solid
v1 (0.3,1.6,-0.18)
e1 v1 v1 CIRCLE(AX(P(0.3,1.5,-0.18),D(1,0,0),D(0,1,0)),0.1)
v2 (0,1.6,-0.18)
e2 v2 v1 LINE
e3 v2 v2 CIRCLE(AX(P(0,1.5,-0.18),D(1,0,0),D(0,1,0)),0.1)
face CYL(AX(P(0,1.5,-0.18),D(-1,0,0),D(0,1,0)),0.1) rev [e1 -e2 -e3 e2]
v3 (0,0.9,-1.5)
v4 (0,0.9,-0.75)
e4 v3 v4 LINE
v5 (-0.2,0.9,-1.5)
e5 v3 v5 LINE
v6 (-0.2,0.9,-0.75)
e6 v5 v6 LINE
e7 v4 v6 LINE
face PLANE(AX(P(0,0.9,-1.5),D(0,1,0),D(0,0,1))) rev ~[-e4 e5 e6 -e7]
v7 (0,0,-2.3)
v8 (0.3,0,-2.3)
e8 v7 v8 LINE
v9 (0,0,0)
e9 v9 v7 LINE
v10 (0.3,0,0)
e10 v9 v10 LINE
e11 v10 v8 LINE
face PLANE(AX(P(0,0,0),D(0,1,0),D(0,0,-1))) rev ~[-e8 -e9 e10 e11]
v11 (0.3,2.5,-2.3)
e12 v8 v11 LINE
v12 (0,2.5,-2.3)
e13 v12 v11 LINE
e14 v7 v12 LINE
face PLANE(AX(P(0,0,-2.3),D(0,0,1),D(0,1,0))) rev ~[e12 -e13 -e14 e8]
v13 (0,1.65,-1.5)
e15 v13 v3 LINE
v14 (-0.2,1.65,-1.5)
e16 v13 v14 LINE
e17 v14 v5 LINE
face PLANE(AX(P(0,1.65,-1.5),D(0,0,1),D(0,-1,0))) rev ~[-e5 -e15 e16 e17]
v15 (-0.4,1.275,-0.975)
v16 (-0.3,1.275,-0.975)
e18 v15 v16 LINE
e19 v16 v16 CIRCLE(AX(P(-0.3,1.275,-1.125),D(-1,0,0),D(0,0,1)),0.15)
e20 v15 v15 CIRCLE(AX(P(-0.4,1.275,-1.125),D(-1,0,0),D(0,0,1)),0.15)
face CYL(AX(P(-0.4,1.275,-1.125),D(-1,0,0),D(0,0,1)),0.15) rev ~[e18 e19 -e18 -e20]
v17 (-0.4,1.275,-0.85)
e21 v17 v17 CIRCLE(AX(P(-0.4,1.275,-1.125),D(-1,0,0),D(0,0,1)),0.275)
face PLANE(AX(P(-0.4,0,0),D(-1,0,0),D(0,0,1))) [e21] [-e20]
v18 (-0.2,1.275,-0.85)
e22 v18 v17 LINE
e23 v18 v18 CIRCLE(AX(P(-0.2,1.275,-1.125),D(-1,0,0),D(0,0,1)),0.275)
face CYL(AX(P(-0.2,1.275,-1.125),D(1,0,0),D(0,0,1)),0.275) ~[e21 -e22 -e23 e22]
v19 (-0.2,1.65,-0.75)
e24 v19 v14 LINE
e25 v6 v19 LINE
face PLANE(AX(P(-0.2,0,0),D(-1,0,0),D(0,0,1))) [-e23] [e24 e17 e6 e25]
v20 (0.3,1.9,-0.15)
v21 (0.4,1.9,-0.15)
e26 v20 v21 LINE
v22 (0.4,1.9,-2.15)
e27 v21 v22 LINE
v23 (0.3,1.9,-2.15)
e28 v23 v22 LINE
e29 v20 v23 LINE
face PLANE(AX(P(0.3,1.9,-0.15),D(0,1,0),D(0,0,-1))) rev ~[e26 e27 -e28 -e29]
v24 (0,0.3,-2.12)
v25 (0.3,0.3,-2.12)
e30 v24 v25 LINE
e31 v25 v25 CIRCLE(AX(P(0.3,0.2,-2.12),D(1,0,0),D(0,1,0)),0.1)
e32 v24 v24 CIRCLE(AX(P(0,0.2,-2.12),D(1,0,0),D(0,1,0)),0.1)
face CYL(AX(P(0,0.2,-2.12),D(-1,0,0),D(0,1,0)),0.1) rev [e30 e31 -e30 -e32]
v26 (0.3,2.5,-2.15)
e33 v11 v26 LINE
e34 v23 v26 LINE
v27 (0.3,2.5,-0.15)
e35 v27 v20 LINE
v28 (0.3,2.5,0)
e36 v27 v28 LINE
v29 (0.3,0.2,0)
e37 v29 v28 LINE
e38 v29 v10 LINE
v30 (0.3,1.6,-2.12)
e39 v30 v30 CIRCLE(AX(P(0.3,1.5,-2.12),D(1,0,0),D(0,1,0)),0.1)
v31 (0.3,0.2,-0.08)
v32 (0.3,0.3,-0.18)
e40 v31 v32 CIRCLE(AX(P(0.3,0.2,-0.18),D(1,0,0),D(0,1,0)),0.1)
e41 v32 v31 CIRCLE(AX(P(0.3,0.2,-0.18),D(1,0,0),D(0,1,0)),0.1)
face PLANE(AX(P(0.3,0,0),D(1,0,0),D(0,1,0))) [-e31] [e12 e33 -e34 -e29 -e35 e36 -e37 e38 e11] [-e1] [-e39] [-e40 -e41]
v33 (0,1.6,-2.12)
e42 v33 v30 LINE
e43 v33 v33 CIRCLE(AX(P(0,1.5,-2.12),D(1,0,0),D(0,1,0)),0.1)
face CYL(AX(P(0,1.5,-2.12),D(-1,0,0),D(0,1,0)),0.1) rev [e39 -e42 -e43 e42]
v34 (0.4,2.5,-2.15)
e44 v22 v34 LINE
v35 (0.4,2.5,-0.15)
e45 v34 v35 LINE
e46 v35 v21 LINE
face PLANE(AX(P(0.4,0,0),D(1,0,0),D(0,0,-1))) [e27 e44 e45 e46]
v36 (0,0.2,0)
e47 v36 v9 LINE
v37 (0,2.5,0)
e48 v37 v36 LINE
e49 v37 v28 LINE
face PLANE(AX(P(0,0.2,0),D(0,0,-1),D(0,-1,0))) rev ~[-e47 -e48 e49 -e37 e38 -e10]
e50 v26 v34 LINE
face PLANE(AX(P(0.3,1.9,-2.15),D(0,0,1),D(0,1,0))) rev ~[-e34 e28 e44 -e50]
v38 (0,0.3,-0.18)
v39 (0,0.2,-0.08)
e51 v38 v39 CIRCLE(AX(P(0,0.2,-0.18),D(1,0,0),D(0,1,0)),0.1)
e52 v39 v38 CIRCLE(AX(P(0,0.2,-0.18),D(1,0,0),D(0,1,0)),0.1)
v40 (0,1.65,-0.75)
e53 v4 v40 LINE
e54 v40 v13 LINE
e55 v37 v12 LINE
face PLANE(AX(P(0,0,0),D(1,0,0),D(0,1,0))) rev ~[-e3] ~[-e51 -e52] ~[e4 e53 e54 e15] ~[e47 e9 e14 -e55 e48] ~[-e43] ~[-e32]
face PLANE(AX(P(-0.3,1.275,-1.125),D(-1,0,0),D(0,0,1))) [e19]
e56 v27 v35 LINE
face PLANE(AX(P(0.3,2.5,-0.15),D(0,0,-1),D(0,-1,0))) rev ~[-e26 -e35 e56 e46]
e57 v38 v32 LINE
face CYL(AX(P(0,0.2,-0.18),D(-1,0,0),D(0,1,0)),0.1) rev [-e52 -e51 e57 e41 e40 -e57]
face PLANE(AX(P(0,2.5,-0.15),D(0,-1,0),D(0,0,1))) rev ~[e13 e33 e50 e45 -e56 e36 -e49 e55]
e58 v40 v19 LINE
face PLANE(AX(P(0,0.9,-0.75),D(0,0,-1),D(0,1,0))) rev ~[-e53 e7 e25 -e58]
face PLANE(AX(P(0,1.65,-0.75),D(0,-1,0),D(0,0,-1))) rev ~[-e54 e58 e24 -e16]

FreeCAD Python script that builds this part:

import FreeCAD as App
import Part
import Sketcher
from FreeCAD import Vector
Q = App.Units.Quantity

doc = App.newDocument("Part")
body = doc.addObject("PartDesign::Body", "Body")

# Sketch on YZ plane
sketch1 = doc.addObject("Sketcher::SketchObject", "Sketch")
body.addObject(sketch1)
sketch1.AttachmentSupport = (doc.YZ_Plane, [""])
sketch1.MapMode = "FlatFace"
sketch1.addGeometry([
    Part.LineSegment(Vector(0.2, 0, 0), Vector(0, 0, 0)),  # 0
    Part.LineSegment(Vector(0, 0, 0), Vector(0, -2.3, 0)),  # 1
    Part.LineSegment(Vector(0, -2.3, 0), Vector(2.5, -2.3, 0)),  # 2
    Part.LineSegment(Vector(2.5, -2.3, 0), Vector(2.5, 0, 0)),  # 3
    Part.LineSegment(Vector(2.5, 0, 0), Vector(0.2, 0, 0)),  # 4
    Part.Circle(Vector(0.2, -2.12, 0), Vector(0, 0, 1), 0.1),  # 5
    Part.Circle(Vector(1.5, -2.12, 0), Vector(0, 0, 1), 0.1),  # 6
    Part.Circle(Vector(0.2, -0.18, 0), Vector(0, 0, 1), 0.1),  # 7
    Part.Circle(Vector(1.5, -0.18, 0), Vector(0, 0, 1), 0.1),  # 8
], False)
sketch1.addConstraint([
    Sketcher.Constraint("Coincident", 0, 2, 1, 1),
    Sketcher.Constraint("Coincident", 1, 2, 2, 1),
    Sketcher.Constraint("Coincident", 2, 2, 3, 1),
    Sketcher.Constraint("Coincident", 3, 2, 4, 1),
    Sketcher.Constraint("Coincident", 4, 2, 0, 1),
    Sketcher.Constraint("Horizontal", 0),
    Sketcher.Constraint("Vertical", 1),
    Sketcher.Constraint("Horizontal", 2),
    Sketcher.Constraint("Vertical", 3),
    Sketcher.Constraint("Horizontal", 4),
    Sketcher.Constraint("Coincident", 0, 2, -1, 1),
    Sketcher.Constraint("Equal", 5, 6),
    Sketcher.Constraint("Equal", 6, 7),
    Sketcher.Constraint("Equal", 7, 8),
    Sketcher.Constraint("Horizontal", 5, 3, 6, 3),
    Sketcher.Constraint("Horizontal", 7, 3, 8, 3),
    Sketcher.Constraint("Vertical", 5, 3, 7, 3),
    Sketcher.Constraint("Vertical", 6, 3, 8, 3),
    Sketcher.Constraint("Vertical", 7, 3, 4, 2),
    Sketcher.Constraint("Equal", 4, 1),
    Sketcher.Constraint("Diameter", 5, Q("0.2 mm")),
    Sketcher.Constraint("DistanceX", 0, 2, 0, 1, Q("0.2 mm")),
    Sketcher.Constraint("DistanceX", 2, 1, 2, 2, Q("2.5 mm")),
    Sketcher.Constraint("DistanceX", -1, 1, 6, 3, Q("1.5 mm")),
    Sketcher.Constraint("DistanceY", 7, 3, -1, 1, Q("0.18 mm")),
    Sketcher.Constraint("DistanceY", 1, 2, 5, 3, Q("0.18 mm")),
])
pad1 = doc.addObject("PartDesign::Pad", "Pad")
body.addObject(pad1)
pad1.Profile = sketch1
pad1.Length = 0.3

# Sketch on YZ plane
sketch2 = doc.addObject("Sketcher::SketchObject", "Sketch001")
body.addObject(sketch2)
sketch2.AttachmentSupport = (doc.YZ_Plane, [""])
sketch2.MapMode = "FlatFace"
sketch2.AttachmentOffset = App.Placement(Vector(0, 0, 0.3), App.Rotation())
sketch2.addGeometry([
    Part.LineSegment(Vector(1.9, -2.1, 0), Vector(2.5, -2.1, 0)),
    Part.LineSegment(Vector(2.5, -2.1, 0), Vector(2.5, -0.1, 0)),
    Part.LineSegment(Vector(2.5, -0.1, 0), Vector(1.9, -0.1, 0)),
    Part.LineSegment(Vector(1.9, -0.1, 0), Vector(1.9, -2.1, 0)),
], False)
sketch2.addConstraint([
    Sketcher.Constraint("Coincident", 0, 2, 1, 1),
    Sketcher.Constraint("Coincident", 1, 2, 2, 1),
    Sketcher.Constraint("Coincident", 2, 2, 3, 1),
    Sketcher.Constraint("Coincident", 3, 2, 0, 1),
    Sketcher.Constraint("Horizontal", 0),
    Sketcher.Constraint("Vertical", 1),
    Sketcher.Constraint("Horizontal", 2),
    Sketcher.Constraint("Vertical", 3),
    Sketcher.Constraint("DistanceX", 0, 1, 0, 2, Q("0.6 mm")),
    Sketcher.Constraint("DistanceX", -1, 1, 0, 2, Q("2.5 mm")),
    Sketcher.Constraint("DistanceY", 1, 1, 1, 2, Q("2 mm")),
    Sketcher.Constraint("DistanceY", 0, 2, -1, 1, Q("2.15 mm")),
])
pad2 = doc.addObject("PartDesign::Pad", "Pad001")
body.addObject(pad2)
pad2.Profile = sketch2
pad2.Length = 0.1

# Sketch on YZ plane
sketch3 = doc.addObject("Sketcher::SketchObject", "Sketch002")
body.addObject(sketch3)
sketch3.AttachmentSupport = (doc.YZ_Plane, [""])
sketch3.MapMode = "FlatFace"
sketch3.addGeometry([
    Part.LineSegment(Vector(1.6, -1.5, 0), Vector(0.9, -1.5, 0)),
    Part.LineSegment(Vector(0.9, -1.5, 0), Vector(0.9, -0.8, 0)),
    Part.LineSegment(Vector(0.9, -0.8, 0), Vector(1.6, -0.8, 0)),
    Part.LineSegment(Vector(1.6, -0.8, 0), Vector(1.6, -1.5, 0)),
], False)
sketch3.addConstraint([
    Sketcher.Constraint("Coincident", 0, 2, 1, 1),
    Sketcher.Constraint("Coincident", 1, 2, 2, 1),
    Sketcher.Constraint("Coincident", 2, 2, 3, 1),
    Sketcher.Constraint("Coincident", 3, 2, 0, 1),
    Sketcher.Constraint("Horizontal", 0),
    Sketcher.Constraint("Vertical", 1),
    Sketcher.Constraint("Horizontal", 2),
    Sketcher.Constraint("Vertical", 3),
    Sketcher.Constraint("Equal", 2, 1),
    Sketcher.Constraint("DistanceX", 0, 2, 0, 1, Q("0.75 mm")),
    Sketcher.Constraint("DistanceX", -1, 1, 0, 2, Q("0.9 mm")),
    Sketcher.Constraint("DistanceY", 1, 2, -1, 1, Q("0.75 mm")),
])
pad3 = doc.addObject("PartDesign::Pad", "Pad002")
body.addObject(pad3)
pad3.Profile = sketch3
pad3.Length = 0.2
pad3.Reversed = True

# Sketch on YZ plane
sketch4 = doc.addObject("Sketcher::SketchObject", "Sketch003")
body.addObject(sketch4)
sketch4.AttachmentSupport = (doc.YZ_Plane, [""])
sketch4.MapMode = "FlatFace"
sketch4.AttachmentOffset = App.Placement(Vector(0, 0, -0.2), App.Rotation())
sketch4.addGeometry(Part.Circle(Vector(1.27, -1.12, 0), Vector(0, 0, 1), 0.28), False)
sketch4.addConstraint([
    Sketcher.Constraint("Diameter", 0, Q("0.55 mm")),
    Sketcher.Constraint("DistanceX", -1, 1, 0, 3, Q("1.275 mm")),
    Sketcher.Constraint("DistanceY", 0, 3, -1, 1, Q("1.125 mm")),
])
pad4 = doc.addObject("PartDesign::Pad", "Pad003")
body.addObject(pad4)
pad4.Profile = sketch4
pad4.Length = 0.2
pad4.Reversed = True

# Sketch on YZ plane
sketch5 = doc.addObject("Sketcher::SketchObject", "Sketch004")
body.addObject(sketch5)
sketch5.AttachmentSupport = (doc.YZ_Plane, [""])
sketch5.MapMode = "FlatFace"
sketch5.AttachmentOffset = App.Placement(Vector(0, 0, -0.4), App.Rotation())
sketch5.addGeometry(Part.Circle(Vector(1.27, -1.12, 0), Vector(0, 0, 1), 0.15), False)
sketch5.addConstraint([
    Sketcher.Constraint("Diameter", 0, Q("0.3 mm")),
    Sketcher.Constraint("DistanceX", -1, 1, 0, 3, Q("1.275 mm")),
    Sketcher.Constraint("DistanceY", 0, 3, -1, 1, Q("1.125 mm")),
])
pocket1 = doc.addObject("PartDesign::Pocket", "Pocket")
body.addObject(pocket1)
pocket1.Profile = sketch5
pocket1.Length = 0.1
pocket1.Reversed = True

doc.recompute()
